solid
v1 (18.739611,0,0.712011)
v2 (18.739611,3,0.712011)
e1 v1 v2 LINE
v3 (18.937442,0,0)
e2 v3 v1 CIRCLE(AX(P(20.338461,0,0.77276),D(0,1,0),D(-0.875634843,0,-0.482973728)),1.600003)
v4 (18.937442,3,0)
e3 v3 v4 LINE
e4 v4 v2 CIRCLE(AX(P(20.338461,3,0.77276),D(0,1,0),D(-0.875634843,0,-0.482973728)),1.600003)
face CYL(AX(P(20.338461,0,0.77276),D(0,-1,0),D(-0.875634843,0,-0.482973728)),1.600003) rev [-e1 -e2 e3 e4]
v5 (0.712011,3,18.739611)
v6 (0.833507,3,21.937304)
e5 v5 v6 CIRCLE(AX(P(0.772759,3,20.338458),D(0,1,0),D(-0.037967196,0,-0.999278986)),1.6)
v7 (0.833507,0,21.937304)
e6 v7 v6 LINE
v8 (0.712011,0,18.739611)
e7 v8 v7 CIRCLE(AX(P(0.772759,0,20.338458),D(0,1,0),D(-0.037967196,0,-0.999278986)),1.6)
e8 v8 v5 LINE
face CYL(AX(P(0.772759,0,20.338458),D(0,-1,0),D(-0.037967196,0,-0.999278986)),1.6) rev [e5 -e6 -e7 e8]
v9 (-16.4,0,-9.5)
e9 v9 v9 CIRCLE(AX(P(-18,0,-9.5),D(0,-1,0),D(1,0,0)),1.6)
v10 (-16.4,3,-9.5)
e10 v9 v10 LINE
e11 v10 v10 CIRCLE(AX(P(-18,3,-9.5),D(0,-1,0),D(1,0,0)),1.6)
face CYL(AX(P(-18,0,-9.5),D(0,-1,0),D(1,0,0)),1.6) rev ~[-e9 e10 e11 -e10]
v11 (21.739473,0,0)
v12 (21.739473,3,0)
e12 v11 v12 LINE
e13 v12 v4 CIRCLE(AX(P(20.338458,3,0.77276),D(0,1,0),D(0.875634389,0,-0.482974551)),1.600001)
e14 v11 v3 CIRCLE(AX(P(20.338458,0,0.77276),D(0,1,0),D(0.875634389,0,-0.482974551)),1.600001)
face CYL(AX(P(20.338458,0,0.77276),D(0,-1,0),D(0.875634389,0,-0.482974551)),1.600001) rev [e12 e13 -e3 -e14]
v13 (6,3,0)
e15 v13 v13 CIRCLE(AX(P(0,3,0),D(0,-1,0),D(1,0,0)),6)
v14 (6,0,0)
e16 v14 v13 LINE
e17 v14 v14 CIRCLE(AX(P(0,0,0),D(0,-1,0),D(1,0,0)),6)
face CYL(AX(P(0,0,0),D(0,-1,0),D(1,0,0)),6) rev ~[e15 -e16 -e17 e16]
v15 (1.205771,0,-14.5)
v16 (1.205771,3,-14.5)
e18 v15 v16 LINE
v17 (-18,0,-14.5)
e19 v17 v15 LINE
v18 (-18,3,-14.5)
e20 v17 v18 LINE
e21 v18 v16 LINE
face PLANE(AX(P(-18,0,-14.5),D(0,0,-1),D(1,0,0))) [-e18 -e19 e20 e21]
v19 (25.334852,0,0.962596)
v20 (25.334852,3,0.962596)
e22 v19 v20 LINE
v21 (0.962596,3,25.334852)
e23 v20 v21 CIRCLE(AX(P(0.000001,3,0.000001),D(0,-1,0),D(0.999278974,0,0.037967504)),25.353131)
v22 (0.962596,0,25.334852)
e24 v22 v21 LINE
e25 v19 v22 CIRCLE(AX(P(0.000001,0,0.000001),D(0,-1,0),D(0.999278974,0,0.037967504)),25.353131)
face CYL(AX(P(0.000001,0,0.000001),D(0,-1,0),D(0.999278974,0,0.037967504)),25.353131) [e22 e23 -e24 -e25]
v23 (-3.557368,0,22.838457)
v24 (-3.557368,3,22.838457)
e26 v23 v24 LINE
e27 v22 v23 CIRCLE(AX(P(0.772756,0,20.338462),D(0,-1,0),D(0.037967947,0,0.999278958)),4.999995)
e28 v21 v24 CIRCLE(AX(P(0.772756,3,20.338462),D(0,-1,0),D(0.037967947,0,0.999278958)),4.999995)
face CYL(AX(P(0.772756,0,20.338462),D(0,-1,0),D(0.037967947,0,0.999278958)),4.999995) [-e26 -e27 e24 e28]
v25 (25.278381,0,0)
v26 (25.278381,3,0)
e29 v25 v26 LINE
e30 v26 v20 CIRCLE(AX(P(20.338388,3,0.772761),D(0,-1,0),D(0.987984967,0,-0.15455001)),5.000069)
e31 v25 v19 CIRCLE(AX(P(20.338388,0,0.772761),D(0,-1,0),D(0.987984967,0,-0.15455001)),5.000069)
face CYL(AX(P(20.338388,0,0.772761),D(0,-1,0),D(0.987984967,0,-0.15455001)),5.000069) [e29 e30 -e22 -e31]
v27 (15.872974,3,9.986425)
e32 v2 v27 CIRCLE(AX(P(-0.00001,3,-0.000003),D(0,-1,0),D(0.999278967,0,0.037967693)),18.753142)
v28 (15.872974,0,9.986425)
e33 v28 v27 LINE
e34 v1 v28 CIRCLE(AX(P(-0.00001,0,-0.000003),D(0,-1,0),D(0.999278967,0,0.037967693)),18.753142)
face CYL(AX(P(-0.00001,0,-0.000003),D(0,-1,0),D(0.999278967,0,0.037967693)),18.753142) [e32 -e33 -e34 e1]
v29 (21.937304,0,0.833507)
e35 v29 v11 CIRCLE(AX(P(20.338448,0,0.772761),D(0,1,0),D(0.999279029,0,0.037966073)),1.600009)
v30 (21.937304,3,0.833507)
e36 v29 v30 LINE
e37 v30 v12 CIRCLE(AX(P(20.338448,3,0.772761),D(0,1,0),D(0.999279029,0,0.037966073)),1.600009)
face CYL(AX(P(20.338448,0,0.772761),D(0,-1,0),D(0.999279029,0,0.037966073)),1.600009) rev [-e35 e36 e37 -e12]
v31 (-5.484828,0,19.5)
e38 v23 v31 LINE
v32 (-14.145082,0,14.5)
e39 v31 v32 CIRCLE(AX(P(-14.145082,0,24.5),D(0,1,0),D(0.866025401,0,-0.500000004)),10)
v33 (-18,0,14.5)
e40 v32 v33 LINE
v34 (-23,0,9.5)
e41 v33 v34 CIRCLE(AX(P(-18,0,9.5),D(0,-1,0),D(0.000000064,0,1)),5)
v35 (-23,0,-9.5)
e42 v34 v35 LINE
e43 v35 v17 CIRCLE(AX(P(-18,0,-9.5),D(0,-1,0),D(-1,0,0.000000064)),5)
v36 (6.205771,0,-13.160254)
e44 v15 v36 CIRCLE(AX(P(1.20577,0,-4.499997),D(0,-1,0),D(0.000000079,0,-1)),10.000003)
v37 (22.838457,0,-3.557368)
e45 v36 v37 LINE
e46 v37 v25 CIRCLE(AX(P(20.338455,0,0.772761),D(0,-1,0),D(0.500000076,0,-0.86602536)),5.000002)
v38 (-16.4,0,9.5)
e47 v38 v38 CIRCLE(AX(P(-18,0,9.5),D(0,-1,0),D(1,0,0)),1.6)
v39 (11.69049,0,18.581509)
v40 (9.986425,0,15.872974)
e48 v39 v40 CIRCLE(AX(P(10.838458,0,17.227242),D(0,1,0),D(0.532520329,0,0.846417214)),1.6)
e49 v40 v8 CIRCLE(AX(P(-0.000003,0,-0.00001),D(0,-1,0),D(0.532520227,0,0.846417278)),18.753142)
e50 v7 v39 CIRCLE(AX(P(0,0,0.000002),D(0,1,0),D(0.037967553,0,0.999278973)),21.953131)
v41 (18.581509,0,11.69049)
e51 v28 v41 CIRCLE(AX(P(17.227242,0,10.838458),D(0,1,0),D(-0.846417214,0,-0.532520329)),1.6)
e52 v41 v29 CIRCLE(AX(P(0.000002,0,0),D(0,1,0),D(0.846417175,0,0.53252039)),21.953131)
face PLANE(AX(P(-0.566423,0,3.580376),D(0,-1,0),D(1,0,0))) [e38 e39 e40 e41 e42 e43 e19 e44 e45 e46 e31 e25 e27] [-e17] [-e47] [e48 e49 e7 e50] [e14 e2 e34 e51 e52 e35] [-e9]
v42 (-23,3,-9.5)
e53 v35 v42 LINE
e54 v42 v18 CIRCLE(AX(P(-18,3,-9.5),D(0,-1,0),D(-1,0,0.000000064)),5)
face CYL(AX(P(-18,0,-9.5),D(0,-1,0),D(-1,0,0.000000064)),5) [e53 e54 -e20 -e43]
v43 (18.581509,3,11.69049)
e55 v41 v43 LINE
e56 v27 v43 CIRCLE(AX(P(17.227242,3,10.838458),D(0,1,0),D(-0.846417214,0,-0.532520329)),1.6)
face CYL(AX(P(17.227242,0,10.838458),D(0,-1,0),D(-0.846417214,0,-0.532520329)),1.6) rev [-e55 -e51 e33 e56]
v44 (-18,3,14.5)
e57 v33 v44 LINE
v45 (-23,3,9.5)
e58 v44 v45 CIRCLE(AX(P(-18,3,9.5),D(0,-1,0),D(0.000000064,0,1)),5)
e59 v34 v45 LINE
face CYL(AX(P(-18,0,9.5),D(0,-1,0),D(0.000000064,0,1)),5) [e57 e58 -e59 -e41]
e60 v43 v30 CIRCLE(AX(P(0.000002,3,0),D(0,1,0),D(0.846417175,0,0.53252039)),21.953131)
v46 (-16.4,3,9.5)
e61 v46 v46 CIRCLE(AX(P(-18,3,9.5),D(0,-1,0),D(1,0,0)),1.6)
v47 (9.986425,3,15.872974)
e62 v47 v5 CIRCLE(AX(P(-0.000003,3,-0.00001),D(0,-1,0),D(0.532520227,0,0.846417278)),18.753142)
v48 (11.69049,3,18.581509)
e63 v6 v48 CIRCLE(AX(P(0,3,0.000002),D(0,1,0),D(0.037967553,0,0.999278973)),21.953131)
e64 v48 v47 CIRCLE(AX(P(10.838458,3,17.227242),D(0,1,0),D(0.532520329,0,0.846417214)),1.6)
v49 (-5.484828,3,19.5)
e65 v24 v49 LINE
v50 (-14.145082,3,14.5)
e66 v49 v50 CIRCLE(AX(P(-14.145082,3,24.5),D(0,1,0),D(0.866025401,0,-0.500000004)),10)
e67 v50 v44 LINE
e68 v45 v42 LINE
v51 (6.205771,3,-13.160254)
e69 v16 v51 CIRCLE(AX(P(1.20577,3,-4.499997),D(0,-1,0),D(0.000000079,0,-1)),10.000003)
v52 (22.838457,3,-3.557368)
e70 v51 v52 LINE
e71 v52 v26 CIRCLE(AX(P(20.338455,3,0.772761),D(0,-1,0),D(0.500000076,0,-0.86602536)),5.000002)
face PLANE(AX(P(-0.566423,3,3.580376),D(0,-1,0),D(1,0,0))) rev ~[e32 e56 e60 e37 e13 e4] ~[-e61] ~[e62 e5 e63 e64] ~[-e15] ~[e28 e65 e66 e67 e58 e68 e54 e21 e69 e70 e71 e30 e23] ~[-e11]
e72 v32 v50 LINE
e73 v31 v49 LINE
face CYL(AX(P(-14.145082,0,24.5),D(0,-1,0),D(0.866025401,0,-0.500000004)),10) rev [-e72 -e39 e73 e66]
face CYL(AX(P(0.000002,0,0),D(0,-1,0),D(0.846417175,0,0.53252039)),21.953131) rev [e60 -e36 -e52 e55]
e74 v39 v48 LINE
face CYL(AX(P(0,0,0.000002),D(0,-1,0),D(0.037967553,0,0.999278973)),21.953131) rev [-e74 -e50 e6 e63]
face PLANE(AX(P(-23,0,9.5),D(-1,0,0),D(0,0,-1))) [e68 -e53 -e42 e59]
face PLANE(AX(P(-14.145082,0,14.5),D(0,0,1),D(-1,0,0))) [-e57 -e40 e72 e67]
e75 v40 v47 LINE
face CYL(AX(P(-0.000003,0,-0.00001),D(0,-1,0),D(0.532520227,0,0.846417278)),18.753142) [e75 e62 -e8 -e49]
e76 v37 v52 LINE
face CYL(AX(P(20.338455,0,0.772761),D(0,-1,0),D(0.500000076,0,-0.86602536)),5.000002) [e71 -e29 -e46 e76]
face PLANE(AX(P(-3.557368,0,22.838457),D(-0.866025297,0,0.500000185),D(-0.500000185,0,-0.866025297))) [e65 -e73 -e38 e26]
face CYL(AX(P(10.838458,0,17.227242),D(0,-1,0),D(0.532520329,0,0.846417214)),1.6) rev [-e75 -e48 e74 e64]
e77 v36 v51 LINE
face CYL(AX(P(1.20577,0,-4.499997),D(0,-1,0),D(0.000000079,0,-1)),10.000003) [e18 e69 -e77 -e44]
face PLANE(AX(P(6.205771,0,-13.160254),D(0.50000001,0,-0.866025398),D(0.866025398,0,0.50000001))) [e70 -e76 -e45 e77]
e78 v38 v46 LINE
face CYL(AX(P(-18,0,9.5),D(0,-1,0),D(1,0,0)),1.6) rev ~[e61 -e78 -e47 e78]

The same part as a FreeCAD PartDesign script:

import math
import FreeCAD as App
import Part
import Sketcher
from FreeCAD import Vector
Q = App.Units.Quantity

doc = App.newDocument("Part")
body = doc.addObject("PartDesign::Body", "Body")

sketch1 = body.newObject("Sketcher::SketchObject", "Sketch")
sketch1.AttachmentSupport = (doc.getObject("XZ_Plane"), [""])
sketch1.MapMode = "FlatFace"
sketch1.addGeometry(Part.LineSegment(Vector(-14.1, 14.5, 0), Vector(-18, 14.5, 0)), False)
sketch1.addGeometry(Part.ArcOfCircle(Part.Circle(Vector(-18, 9.5, 0), Vector(0, 0, 1), 5), math.radians(90), math.radians(180)), False)
sketch1.addGeometry(Part.LineSegment(Vector(-23, 9.5, 0), Vector(-23, -9.5, 0)), False)
sketch1.addGeometry(Part.ArcOfCircle(Part.Circle(Vector(-18, -9.5, 0), Vector(0, 0, 1), 5), math.radians(180), math.radians(270)), False)
sketch1.addGeometry(Part.LineSegment(Vector(-18, -14.5, 0), Vector(1.2, -14.5, 0)), False)
sketch1.addGeometry(Part.ArcOfCircle(Part.Circle(Vector(1.2, -4.5, 0), Vector(0, 0, 1), 10), math.radians(-90), math.radians(-60)), False)
sketch1.addGeometry(Part.LineSegment(Vector(6.2, -13.2, 0), Vector(22.8, -3.6, 0)), False)
sketch1.addGeometry(Part.ArcOfCircle(Part.Circle(Vector(20.3, 0.8, 0), Vector(0, 0, 1), 5), math.radians(-60), math.radians(-9)), False)
sketch1.addGeometry(Part.ArcOfCircle(Part.Circle(Vector(20.3, 0.8, 0), Vector(0, 0, 1), 5), math.radians(-8.89), math.radians(2.18)), False)
sketch1.addGeometry(Part.ArcOfCircle(Part.Circle(Vector(0, 0, 0), Vector(0, 0, 1), 25.4), math.radians(2), math.radians(88)), False)
sketch1.addGeometry(Part.ArcOfCircle(Part.Circle(Vector(0.8, 20.3, 0), Vector(0, 0, 1), 5), math.radians(88), math.radians(150)), False)
sketch1.addGeometry(Part.LineSegment(Vector(-3.6, 22.8, 0), Vector(-5.5, 19.5, 0)), False)
sketch1.addGeometry(Part.ArcOfCircle(Part.Circle(Vector(-14.1, 24.5, 0), Vector(0, 0, 1), 10), math.radians(-90), math.radians(-30)), False)
sketch1.addGeometry(Part.Circle(Vector(-18, -9.5, 0), Vector(0, 0, 1), 1.6), False)
sketch1.addGeometry(Part.Circle(Vector(0, 0, 0), Vector(0, 0, 1), 6), False)
sketch1.addGeometry(Part.Circle(Vector(-18, 9.5, 0), Vector(0, 0, 1), 1.6), False)
sketch1.addGeometry(Part.ArcOfCircle(Part.Circle(Vector(0, 0, 0), Vector(0, 0, 1), 22), math.radians(2), math.radians(32)), False)
sketch1.addGeometry(Part.ArcOfCircle(Part.Circle(Vector(20.3, 0.8, 0), Vector(0, 0, 1), 1.6), math.radians(-29), math.radians(2)), False)
sketch1.addGeometry(Part.ArcOfCircle(Part.Circle(Vector(20.3, 0.8, 0), Vector(0, 0, 1), 1.6), math.radians(-151), math.radians(-29)), False)
sketch1.addGeometry(Part.ArcOfCircle(Part.Circle(Vector(20.3, 0.8, 0), Vector(0, 0, 1), 1.6), math.radians(-178), math.radians(-151)), False)
sketch1.addGeometry(Part.ArcOfCircle(Part.Circle(Vector(0, 0, 0), Vector(0, 0, 1), 18.8), math.radians(2), math.radians(32)), False)
sketch1.addGeometry(Part.ArcOfCircle(Part.Circle(Vector(17.2, 10.8, 0), Vector(0, 0, 1), 1.6), math.radians(32), math.radians(212)), False)
sketch1.addGeometry(Part.ArcOfCircle(Part.Circle(Vector(0.8, 20.3, 0), Vector(0, 0, 1), 1.6), math.radians(88), math.radians(268)), False)
sketch1.addGeometry(Part.ArcOfCircle(Part.Circle(Vector(0, 0, 0), Vector(0, 0, 1), 22), math.radians(58), math.radians(88)), False)
sketch1.addGeometry(Part.ArcOfCircle(Part.Circle(Vector(10.8, 17.2, 0), Vector(0, 0, 1), 1.6), math.radians(-122), math.radians(58)), False)
sketch1.addGeometry(Part.ArcOfCircle(Part.Circle(Vector(0, 0, 0), Vector(0, 0, 1), 18.8), math.radians(58), math.radians(88)), False)
sketch1.addConstraint(Sketcher.Constraint("Tangent", 0, 2, 1, 1))
sketch1.addConstraint(Sketcher.Constraint("Tangent", 1, 2, 2, 1))
sketch1.addConstraint(Sketcher.Constraint("Tangent", 2, 2, 3, 1))
sketch1.addConstraint(Sketcher.Constraint("Tangent", 3, 2, 4, 1))
sketch1.addConstraint(Sketcher.Constraint("Tangent", 4, 2, 5, 1))
sketch1.addConstraint(Sketcher.Constraint("Tangent", 5, 2, 6, 1))
sketch1.addConstraint(Sketcher.Constraint("Tangent", 6, 2, 7, 1))
sketch1.addConstraint(Sketcher.Constraint("Coincident", 7, 2, 8, 1))
sketch1.addConstraint(Sketcher.Constraint("Tangent", 8, 2, 9, 1))
sketch1.addConstraint(Sketcher.Constraint("Tangent", 9, 2, 10, 1))
sketch1.addConstraint(Sketcher.Constraint("Tangent", 10, 2, 11, 1))
sketch1.addConstraint(Sketcher.Constraint("Tangent", 11, 2, 12, 2))
sketch1.addConstraint(Sketcher.Constraint("Tangent", 12, 1, 0, 1))
sketch1.addConstraint(Sketcher.Constraint("Tangent", 16, 1, 17, 2))
sketch1.addConstraint(Sketcher.Constraint("Coincident", 17, 1, 18, 2))
sketch1.addConstraint(Sketcher.Constraint("Tangent", 18, 1, 19, 2))
sketch1.addConstraint(Sketcher.Constraint("Tangent", 19, 1, 20, 1))
sketch1.addConstraint(Sketcher.Constraint("Tangent", 20, 2, 21, 2))
sketch1.addConstraint(Sketcher.Constraint("Tangent", 21, 1, 16, 2))
sketch1.addConstraint(Sketcher.Constraint("Tangent", 22, 1, 23, 2))
sketch1.addConstraint(Sketcher.Constraint("Tangent", 23, 1, 24, 2))
sketch1.addConstraint(Sketcher.Constraint("Tangent", 24, 1, 25, 1))
sketch1.addConstraint(Sketcher.Constraint("Tangent", 25, 2, 22, 2))
sketch1.addConstraint(Sketcher.Constraint("Horizontal", 0))
sketch1.addConstraint(Sketcher.Constraint("Vertical", 2))
sketch1.addConstraint(Sketcher.Constraint("Horizontal", 4))
sketch1.addConstraint(Sketcher.Constraint("Coincident", 9, 3, -1, 1))
sketch1.addConstraint(Sketcher.Constraint("Coincident", 14, 3, -1, 1))
sketch1.addConstraint(Sketcher.Constraint("Coincident", 16, 3, -1, 1))
sketch1.addConstraint(Sketcher.Constraint("Coincident", 20, 3, -1, 1))
sketch1.addConstraint(Sketcher.Constraint("Coincident", 23, 3, -1, 1))
sketch1.addConstraint(Sketcher.Constraint("Coincident", 25, 3, -1, 1))
sketch1.addConstraint(Sketcher.Constraint("Coincident", 13, 3, 3, 3))
sketch1.addConstraint(Sketcher.Constraint("Coincident", 15, 3, 1, 3))
sketch1.addConstraint(Sketcher.Constraint("Coincident", 17, 3, 7, 3))
sketch1.addConstraint(Sketcher.Constraint("Coincident", 18, 3, 7, 3))
sketch1.addConstraint(Sketcher.Constraint("Coincident", 22, 3, 10, 3))
sketch1.addConstraint(Sketcher.Constraint("Equal", 1, 3))
sketch1.addConstraint(Sketcher.Constraint("Equal", 13, 15))
sketch1.addConstraint(Sketcher.Constraint("Equal", 15, 18))
sketch1.addConstraint(Sketcher.Constraint("Equal", 18, 21))
sketch1.addConstraint(Sketcher.Constraint("Equal", 21, 22))
sketch1.addConstraint(Sketcher.Constraint("Equal", 16, 23))
sketch1.addConstraint(Sketcher.Constraint("PointOnObject", 7, 2, -1))
sketch1.addConstraint(Sketcher.Constraint("PointOnObject", 17, 1, -1))
sketch1.addConstraint(Sketcher.Constraint("PointOnObject", 18, 1, -1))
sketch1.addConstraint(Sketcher.Constraint("Horizontal", 7, 3, 8, 3))
sketch1.addConstraint(Sketcher.Constraint("Diameter", 14, 12.0))
sketch1.addConstraint(Sketcher.Constraint("Radius", 1, 5.0))
sketch1.addConstraint(Sketcher.Constraint("Radius", 12, 10.0))
sketch1.addConstraint(Sketcher.Constraint("Diameter", 13, 3.2))
sketch1.addConstraint(Sketcher.Constraint("DistanceY", 2, 2, 2, 1, 19.0))
sketch1.addConstraint(Sketcher.Constraint("Angle", 6, Q("30.000001 deg")))
sketch1.addConstraint(Sketcher.Constraint("Angle", 11, Q("-120.000012 deg")))
sketch1.addConstraint(Sketcher.Constraint("DistanceX", 1, 3, -1, 1, 18.0))
sketch1.addConstraint(Sketcher.Constraint("DistanceX", 4, 2, 5, 2, 5.0))
sketch1.addConstraint(Sketcher.Constraint("DistanceY", -1, 1, 1, 3, 9.5))
sketch1.addConstraint(Sketcher.Constraint("DistanceY", 21, 3, 22, 3, 9.5))
sketch1.addConstraint(Sketcher.Constraint("DistanceX", 18, 3, 6, 2, 2.499999))
sketch1.addConstraint(Sketcher.Constraint("Radius", 8, 5.000069))
sketch1.addConstraint(Sketcher.Constraint("Radius", 9, 25.353131))
sketch1.addConstraint(Sketcher.Constraint("DistanceX", 4, 1, 4, 2, 19.205771))
sketch1.addConstraint(Sketcher.Constraint("DistanceY", 8, 3, 10, 3, 19.565701))
sketch1.addConstraint(Sketcher.Constraint("DistanceX", 22, 3, 24, 3, 10.065699))
pad1 = body.newObject("PartDesign::Pad", "Pad")
pad1.Profile = sketch1
pad1.Length = 3
pad1.Reversed = True

doc.recompute()
